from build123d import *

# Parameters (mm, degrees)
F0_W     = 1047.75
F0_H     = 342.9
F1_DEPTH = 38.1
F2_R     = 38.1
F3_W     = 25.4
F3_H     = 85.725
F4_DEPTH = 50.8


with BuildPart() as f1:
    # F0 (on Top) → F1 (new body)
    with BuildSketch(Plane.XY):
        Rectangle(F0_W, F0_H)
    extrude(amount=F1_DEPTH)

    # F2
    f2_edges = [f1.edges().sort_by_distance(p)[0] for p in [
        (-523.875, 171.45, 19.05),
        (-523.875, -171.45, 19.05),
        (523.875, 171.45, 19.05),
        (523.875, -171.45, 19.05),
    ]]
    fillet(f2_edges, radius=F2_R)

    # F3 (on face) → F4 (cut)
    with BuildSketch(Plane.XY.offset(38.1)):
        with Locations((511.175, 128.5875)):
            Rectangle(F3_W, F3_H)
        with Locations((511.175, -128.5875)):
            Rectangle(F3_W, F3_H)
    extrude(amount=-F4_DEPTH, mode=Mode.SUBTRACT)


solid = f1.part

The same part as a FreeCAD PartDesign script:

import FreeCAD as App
import Part
import Sketcher
from FreeCAD import Vector
Q = App.Units.Quantity


def edges_at(feature, points):
    """Names of the edges that pass closest to the given points."""
    edges = feature.Shape.Edges
    near = lambda p: min(range(len(edges)), key=lambda i: edges[i].distToShape(Part.Vertex(*p))[0])
    return sorted({f"Edge{near(p) + 1}" for p in points})

doc = App.newDocument("Part")
params = doc.addObject("Spreadsheet::Sheet", "Params")
for row, (alias, value) in enumerate([
    ("sketch1_height", "13.5 in"),
    ("sketch1_width", "41.25 in"),
    ("pad1_length", "1.5 in"),
    ("fillet_radius", "1.5 in"),
    ("sketch2_width", "1 in"),
    ("sketch2_height", "3.375 in"),
    ("pocket1_length", "2 in"),
], start=1):
    params.set(f"A{row}", alias)
    params.set(f"B{row}", "=" + value)
    params.setAlias(f"B{row}", alias)

body = doc.addObject("PartDesign::Body", "Body")

sketch1 = body.newObject("Sketcher::SketchObject", "Sketch")
sketch1.AttachmentSupport = (doc.getObject("XY_Plane"), [""])
sketch1.MapMode = "FlatFace"
sketch1.addGeometry([
    Part.LineSegment(Vector(-524, 171, 0), Vector(-524, -171, 0)),
    Part.LineSegment(Vector(-524, -171, 0), Vector(524, -171, 0)),
    Part.LineSegment(Vector(524, -171, 0), Vector(524, 171, 0)),
    Part.LineSegment(Vector(524, 171, 0), Vector(-524, 171, 0)),
], False)
sketch1.addConstraint([
    Sketcher.Constraint("Coincident", 0, 2, 1, 1),
    Sketcher.Constraint("Coincident", 1, 2, 2, 1),
    Sketcher.Constraint("Coincident", 2, 2, 3, 1),
    Sketcher.Constraint("Coincident", 3, 2, 0, 1),
    Sketcher.Constraint("Vertical", 0),
    Sketcher.Constraint("Horizontal", 1),
    Sketcher.Constraint("Vertical", 2),
    Sketcher.Constraint("Horizontal", 3),
    Sketcher.Constraint("Symmetric", 0, 2, 2, 2, -1, 1),
    Sketcher.Constraint("DistanceY", 0, 2, 0, 1, Q("13.5 in")),
    Sketcher.Constraint("DistanceX", 1, 1, 1, 2, Q("41.25 in")),
])
sketch1.setExpression("Constraints[9]", "Params.sketch1_height")
sketch1.setExpression("Constraints[10]", "Params.sketch1_width")
pad1 = body.newObject("PartDesign::Pad", "Pad")
pad1.Profile = sketch1
pad1.setExpression("Length", "Params.pad1_length")
doc.recompute()

fillet = body.newObject("PartDesign::Fillet", "Fillet")
fillet.Base = (pad1, edges_at(pad1, [
    (-523.875, 171.45, 19.05),
    (-523.875, -171.45, 19.05),
    (523.875, 171.45, 19.05),
    (523.875, -171.45, 19.05),
]))
fillet.setExpression("Radius", "Params.fillet_radius")

sketch2 = body.newObject("Sketcher::SketchObject", "Sketch001")
sketch2.AttachmentSupport = (doc.getObject("XY_Plane"), [""])
sketch2.MapMode = "FlatFace"
sketch2.AttachmentOffset = App.Placement(Vector(0, 0, 1.5 * 25.4), App.Rotation())
sketch2.addGeometry([
    Part.LineSegment(Vector(498, 171, 0), Vector(498, 86, 0)),
    Part.LineSegment(Vector(498, 86, 0), Vector(524, 86, 0)),
    Part.LineSegment(Vector(524, 86, 0), Vector(524, 171, 0)),
    Part.LineSegment(Vector(524, 171, 0), Vector(498, 171, 0)),
    Part.LineSegment(Vector(498, -86, 0), Vector(498, -171, 0)),
    Part.LineSegment(Vector(498, -171, 0), Vector(524, -171, 0)),
    Part.LineSegment(Vector(524, -171, 0), Vector(524, -86, 0)),
    Part.LineSegment(Vector(524, -86, 0), Vector(498, -86, 0)),
], False)
sketch2.addConstraint([
    Sketcher.Constraint("Coincident", 0, 2, 1, 1),
    Sketcher.Constraint("Coincident", 1, 2, 2, 1),
    Sketcher.Constraint("Coincident", 2, 2, 3, 1),
    Sketcher.Constraint("Coincident", 3, 2, 0, 1),
    Sketcher.Constraint("Coincident", 4, 2, 5, 1),
    Sketcher.Constraint("Coincident", 5, 2, 6, 1),
    Sketcher.Constraint("Coincident", 6, 2, 7, 1),
    Sketcher.Constraint("Coincident", 7, 2, 4, 1),
    Sketcher.Constraint("Vertical", 0),
    Sketcher.Constraint("Horizontal", 1),
    Sketcher.Constraint("Vertical", 2),
    Sketcher.Constraint("Horizontal", 3),
    Sketcher.Constraint("Vertical", 4),
    Sketcher.Constraint("Horizontal", 5),
    Sketcher.Constraint("Vertical", 6),
    Sketcher.Constraint("Horizontal", 7),
    Sketcher.Constraint("Symmetric", 3, 2, 4, 2, -1),
    Sketcher.Constraint("Symmetric", 1, 2, 6, 2, -1),
    Sketcher.Constraint("DistanceX", 1, 1, 1, 2, Q("1 in")),
    Sketcher.Constraint("DistanceY", 4, 2, 3, 2, Q("13.5 in")),
    Sketcher.Constraint("DistanceY", 0, 2, 0, 1, Q("3.375 in")),
    Sketcher.Constraint("DistanceX", -1, 1, 0, 2, Q("19.625 in")),
])
sketch2.setExpression("Constraints[18]", "Params.sketch2_width")
sketch2.setExpression("Constraints[20]", "Params.sketch2_height")
pocket1 = body.newObject("PartDesign::Pocket", "Pocket")
pocket1.Profile = sketch2
pocket1.setExpression("Length", "Params.pocket1_length")

doc.recompute()
